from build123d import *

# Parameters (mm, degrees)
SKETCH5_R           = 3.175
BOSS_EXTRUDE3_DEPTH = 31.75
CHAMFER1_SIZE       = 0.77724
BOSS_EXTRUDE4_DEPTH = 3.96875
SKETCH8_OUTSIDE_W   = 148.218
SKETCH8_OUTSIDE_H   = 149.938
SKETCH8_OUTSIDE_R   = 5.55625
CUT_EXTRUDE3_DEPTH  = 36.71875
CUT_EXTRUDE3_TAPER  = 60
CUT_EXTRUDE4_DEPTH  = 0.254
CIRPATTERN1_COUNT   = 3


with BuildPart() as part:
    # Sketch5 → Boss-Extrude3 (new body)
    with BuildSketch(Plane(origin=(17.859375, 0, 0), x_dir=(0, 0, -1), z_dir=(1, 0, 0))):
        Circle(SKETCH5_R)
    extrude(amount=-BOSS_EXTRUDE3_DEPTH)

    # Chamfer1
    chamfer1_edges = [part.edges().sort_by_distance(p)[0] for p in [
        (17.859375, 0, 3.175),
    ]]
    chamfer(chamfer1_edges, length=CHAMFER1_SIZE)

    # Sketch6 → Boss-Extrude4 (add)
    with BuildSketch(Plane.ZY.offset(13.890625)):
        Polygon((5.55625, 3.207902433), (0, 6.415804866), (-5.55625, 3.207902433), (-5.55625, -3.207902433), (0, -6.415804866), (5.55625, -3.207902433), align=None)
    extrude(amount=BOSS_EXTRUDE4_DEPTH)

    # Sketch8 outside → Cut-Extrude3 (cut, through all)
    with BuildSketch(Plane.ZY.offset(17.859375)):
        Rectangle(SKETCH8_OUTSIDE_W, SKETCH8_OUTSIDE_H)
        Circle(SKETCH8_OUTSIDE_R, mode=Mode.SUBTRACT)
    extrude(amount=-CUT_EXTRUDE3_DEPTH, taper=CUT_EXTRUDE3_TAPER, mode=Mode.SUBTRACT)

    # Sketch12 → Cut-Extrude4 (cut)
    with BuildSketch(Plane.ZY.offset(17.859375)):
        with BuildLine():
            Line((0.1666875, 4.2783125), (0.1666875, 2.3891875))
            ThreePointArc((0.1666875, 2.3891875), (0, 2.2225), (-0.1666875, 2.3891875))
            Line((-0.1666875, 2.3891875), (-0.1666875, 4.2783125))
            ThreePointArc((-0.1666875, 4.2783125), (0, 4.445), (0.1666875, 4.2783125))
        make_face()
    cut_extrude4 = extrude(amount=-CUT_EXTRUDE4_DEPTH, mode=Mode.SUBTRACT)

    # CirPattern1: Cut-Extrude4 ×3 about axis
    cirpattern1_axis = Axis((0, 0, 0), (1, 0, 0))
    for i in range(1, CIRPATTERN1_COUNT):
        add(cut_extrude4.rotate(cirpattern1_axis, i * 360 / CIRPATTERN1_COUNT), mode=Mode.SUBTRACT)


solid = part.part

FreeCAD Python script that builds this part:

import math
import FreeCAD as App
import Part
import Sketcher
Q = App.Units.Quantity


def edges_at(feature, points):
    """Names of the edges that pass closest to the given points."""
    edges = feature.Shape.Edges
    near = lambda p: min(range(len(edges)), key=lambda i: edges[i].distToShape(Part.Vertex(*p))[0])
    return sorted({f"Edge{near(p) + 1}" for p in points})


def add_polygon(sketch, points):
    """Adds a closed chain of lines whose ends are joined by coincident constraints."""
    first, n = sketch.GeometryCount, len(points)
    for a, b in zip(points, points[1:] + points[:1]):
        sketch.addGeometry(Part.LineSegment(App.Vector(*a, 0), App.Vector(*b, 0)), False)
    for i in range(n):
        sketch.addConstraint(Sketcher.Constraint("Coincident", first + i, 2, first + (i + 1) % n, 1))

doc = App.newDocument("Part")
body = doc.addObject("PartDesign::Body", "Body")

# Sketch on YZ plane
sketch1 = body.newObject("Sketcher::SketchObject", "Sketch")
sketch1.AttachmentSupport = (doc.getObject("YZ_Plane"), [""])
sketch1.MapMode = "FlatFace"
sketch1.AttachmentOffset = App.Placement(App.Vector(0, 0, 0.703125 * 25.4), App.Rotation())
sketch1.addGeometry(Part.Circle(App.Vector(0, 0, 0), App.Vector(0, 0, 1), 3.2), False)
sketch1.addConstraint([
    Sketcher.Constraint("Coincident", 0, 3, -1, 1),
    Sketcher.Constraint("Diameter", 0, Q("0.25 in")),
])
pad1 = body.newObject("PartDesign::Pad", "Pad")
pad1.Profile = sketch1
pad1.Length = Q("1.25 in")
pad1.Reversed = True
doc.recompute()

chamfer = body.newObject("PartDesign::Chamfer", "Chamfer")
chamfer.Base = (pad1, edges_at(pad1, [(17.859, 0, 3.175)]))
chamfer.Size = Q("0.0306 in")

# Sketch on YZ plane
sketch2 = body.newObject("Sketcher::SketchObject", "Sketch001")
sketch2.AttachmentSupport = (doc.getObject("YZ_Plane"), [""])
sketch2.MapMode = "FlatFace"
sketch2.AttachmentOffset = App.Placement(App.Vector(0, 0, -0.546875 * 25.4), App.Rotation())
add_polygon(sketch2, [(3, 6), (6, 0), (3, -6), (-3, -6), (-6, 0), (-3, 6)])  # lines 0-5
sketch2.addConstraint([
    Sketcher.Constraint("Horizontal", 2),
    Sketcher.Constraint("Horizontal", 5),
    Sketcher.Constraint("Symmetric", 0, 2, 3, 2, -1, 1),
    Sketcher.Constraint("Symmetric", 1, 2, 4, 2, -1, 1),
    Sketcher.Constraint("PointOnObject", 0, 2, -1),
    Sketcher.Constraint("Parallel", 0, 3),
    Sketcher.Constraint("Vertical", 2, 2, 4, 2),
    Sketcher.Constraint("Angle", 0, Q("-60 deg")),
    Sketcher.Constraint("DistanceY", 1, 2, -1, 1, Q("0.21875 in")),
    Sketcher.Constraint("DistanceX", 2, 2, 2, 1, 6.415805),
])
pad2 = body.newObject("PartDesign::Pad", "Pad001")
pad2.Profile = sketch2
pad2.Length = Q("0.15625 in")
pad2.Reversed = True

# Sketch on YZ plane
sketch3 = body.newObject("Sketcher::SketchObject", "Sketch002")
sketch3.AttachmentSupport = (doc.getObject("YZ_Plane"), [""])
sketch3.MapMode = "FlatFace"
sketch3.AttachmentOffset = App.Placement(App.Vector(0, 0, -0.703125 * 25.4), App.Rotation())
add_polygon(sketch3, [(75, -74), (-75, -74), (-75, 74), (75, 74)])  # lines 0-3
sketch3.addGeometry(Part.Circle(App.Vector(0, 0, 0), App.Vector(0, 0, 1), 6), False)  # 4
sketch3.addConstraint([
    Sketcher.Constraint("Horizontal", 0),
    Sketcher.Constraint("Vertical", 1),
    Sketcher.Constraint("Horizontal", 2),
    Sketcher.Constraint("Vertical", 3),
    Sketcher.Constraint("Coincident", 4, 3, -1, 1),
    Sketcher.Constraint("Symmetric", 0, 2, 2, 2, -1, 1),
    Sketcher.Constraint("Diameter", 4, Q("0.4375 in")),
    Sketcher.Constraint("DistanceX", 0, 2, 0, 1, 149.938),
    Sketcher.Constraint("DistanceY", 1, 1, 1, 2, 148.218),
])
pocket1 = body.newObject("PartDesign::Pocket", "Pocket")
pocket1.Profile = sketch3
pocket1.Length = 36.71875
pocket1.Reversed = True
pocket1.TaperAngle = 60

# Sketch on YZ plane
sketch4 = body.newObject("Sketcher::SketchObject", "Sketch003")
sketch4.AttachmentSupport = (doc.getObject("YZ_Plane"), [""])
sketch4.MapMode = "FlatFace"
sketch4.AttachmentOffset = App.Placement(App.Vector(0, 0, -0.703125 * 25.4), App.Rotation())
sketch4.addGeometry([
    Part.LineSegment(App.Vector(2.39, 0.17, 0), App.Vector(4.28, 0.17, 0)),
    Part.ArcOfCircle(Part.Circle(App.Vector(4.28, 0, 0), App.Vector(0, 0, 1), 0.17), math.radians(-90), math.radians(90)),
    Part.LineSegment(App.Vector(4.28, -0.17, 0), App.Vector(2.39, -0.17, 0)),
    Part.ArcOfCircle(Part.Circle(App.Vector(2.39, 0, 0), App.Vector(0, 0, 1), 0.17), math.radians(90), math.radians(270)),
], False)
sketch4.addConstraint([
    Sketcher.Constraint("Tangent", 0, 2, 1, 2),
    Sketcher.Constraint("Tangent", 1, 1, 2, 1),
    Sketcher.Constraint("Tangent", 2, 2, 3, 2),
    Sketcher.Constraint("Tangent", 3, 1, 0, 1),
    Sketcher.Constraint("Horizontal", 0),
    Sketcher.Constraint("Horizontal", 2),
    Sketcher.Constraint("PointOnObject", 1, 3, -1),
    Sketcher.Constraint("Radius", 1, 0.166687),
    Sketcher.Constraint("DistanceX", 0, 1, 0, 2, 1.889125),
    Sketcher.Constraint("DistanceX", -1, 1, 1, 3, 4.278313),
])
pocket2 = body.newObject("PartDesign::Pocket", "Pocket001")
pocket2.Profile = sketch4
pocket2.Length = Q("0.01 in")
pocket2.Reversed = True
doc.recompute()

polarpattern = body.newObject("PartDesign::PolarPattern", "PolarPattern")
polarpattern.Originals = [pocket2]
polarpattern.Axis = (doc.getObject("X_Axis"), [""])
polarpattern.Angle = 360
polarpattern.Occurrences = 3
body.Tip = polarpattern

doc.recompute()
